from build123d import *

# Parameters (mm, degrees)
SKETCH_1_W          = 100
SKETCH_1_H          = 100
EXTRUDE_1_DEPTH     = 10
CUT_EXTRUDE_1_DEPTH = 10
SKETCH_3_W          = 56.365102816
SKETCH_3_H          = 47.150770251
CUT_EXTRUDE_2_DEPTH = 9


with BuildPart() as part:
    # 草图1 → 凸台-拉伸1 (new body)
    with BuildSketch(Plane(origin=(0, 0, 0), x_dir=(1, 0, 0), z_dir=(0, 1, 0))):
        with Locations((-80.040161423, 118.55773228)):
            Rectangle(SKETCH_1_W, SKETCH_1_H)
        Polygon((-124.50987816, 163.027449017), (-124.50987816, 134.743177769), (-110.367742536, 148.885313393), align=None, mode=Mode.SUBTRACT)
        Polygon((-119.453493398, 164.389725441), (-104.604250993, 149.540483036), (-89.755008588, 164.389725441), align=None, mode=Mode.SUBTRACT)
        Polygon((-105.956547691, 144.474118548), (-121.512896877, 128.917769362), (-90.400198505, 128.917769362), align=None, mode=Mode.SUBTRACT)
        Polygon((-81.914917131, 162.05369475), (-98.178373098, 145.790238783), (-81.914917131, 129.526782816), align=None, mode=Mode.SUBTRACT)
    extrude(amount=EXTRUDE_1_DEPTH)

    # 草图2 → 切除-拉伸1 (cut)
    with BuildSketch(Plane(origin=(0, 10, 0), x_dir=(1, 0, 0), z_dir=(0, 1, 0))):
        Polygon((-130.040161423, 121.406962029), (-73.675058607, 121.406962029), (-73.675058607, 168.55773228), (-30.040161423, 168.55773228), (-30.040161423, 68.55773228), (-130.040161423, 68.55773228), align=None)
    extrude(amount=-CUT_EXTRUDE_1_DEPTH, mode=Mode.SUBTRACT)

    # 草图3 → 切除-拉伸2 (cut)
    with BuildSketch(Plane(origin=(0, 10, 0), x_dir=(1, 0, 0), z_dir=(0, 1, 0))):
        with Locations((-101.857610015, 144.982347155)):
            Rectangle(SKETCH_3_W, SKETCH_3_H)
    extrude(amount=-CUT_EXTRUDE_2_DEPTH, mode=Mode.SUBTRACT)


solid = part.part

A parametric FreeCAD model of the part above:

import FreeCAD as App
import Part
import Sketcher
from FreeCAD import Vector
Q = App.Units.Quantity

doc = App.newDocument("Part")
params = doc.addObject("Spreadsheet::Sheet", "Params")
for row, (alias, value) in enumerate([
    ("sketch1_width", "100 mm"),
    ("sketch1_length", "22 mm"),
    ("sketch1_length2", "23 mm"),
    ("sketch1_length3", "20 mm"),
    ("sketch1_length4", "21 mm"),
    ("pad1_length", "10 mm"),
    ("sketch2_width", "100 mm"),
    ("pocket1_length", "10 mm"),
    ("pocket2_length", "9 mm"),
], start=1):
    params.set(f"A{row}", alias)
    params.set(f"B{row}", "=" + value)
    params.setAlias(f"B{row}", alias)

body = doc.addObject("PartDesign::Body", "Body")

# Sketch on XZ plane
sketch1 = body.newObject("Sketcher::SketchObject", "Sketch")
sketch1.AttachmentSupport = (doc.getObject("XZ_Plane"), [""])
sketch1.MapMode = "FlatFace"
sketch1.addGeometry(Part.LineSegment(Vector(-130.040161, -168.557732, 0), Vector(-130.040161, -68.557732, 0)), False)
sketch1.addGeometry(Part.LineSegment(Vector(-130.040161, -68.557732, 0), Vector(-30.040161, -68.557732, 0)), False)
sketch1.addGeometry(Part.LineSegment(Vector(-30.040161, -68.557732, 0), Vector(-30.040161, -168.557732, 0)), False)
sketch1.addGeometry(Part.LineSegment(Vector(-30.040161, -168.557732, 0), Vector(-130.040161, -168.557732, 0)), False)
sketch1.addGeometry(Part.LineSegment(Vector(-121.512897, -128.917769, 0), Vector(-105.956548, -144.474119, 0)), False)
sketch1.addGeometry(Part.LineSegment(Vector(-105.956548, -144.474119, 0), Vector(-90.400199, -128.917769, 0)), False)
sketch1.addGeometry(Part.LineSegment(Vector(-90.400199, -128.917769, 0), Vector(-121.512897, -128.917769, 0)), False)
sketch1.addGeometry(Part.LineSegment(Vector(-98.178373, -145.790239, 0), Vector(-81.914917, -162.053695, 0)), False)
sketch1.addGeometry(Part.LineSegment(Vector(-81.914917, -162.053695, 0), Vector(-81.914917, -129.526783, 0)), False)
sketch1.addGeometry(Part.LineSegment(Vector(-81.914917, -129.526783, 0), Vector(-98.178373, -145.790239, 0)), False)
sketch1.addGeometry(Part.LineSegment(Vector(-124.509878, -134.743178, 0), Vector(-124.509878, -163.027449, 0)), False)
sketch1.addGeometry(Part.LineSegment(Vector(-124.509878, -163.027449, 0), Vector(-110.367743, -148.885313, 0)), False)
sketch1.addGeometry(Part.LineSegment(Vector(-110.367743, -148.885313, 0), Vector(-124.509878, -134.743178, 0)), False)
sketch1.addGeometry(Part.LineSegment(Vector(-104.604251, -149.540483, 0), Vector(-119.453493, -164.389725, 0)), False)
sketch1.addGeometry(Part.LineSegment(Vector(-119.453493, -164.389725, 0), Vector(-89.755009, -164.389725, 0)), False)
sketch1.addGeometry(Part.LineSegment(Vector(-89.755009, -164.389725, 0), Vector(-104.604251, -149.540483, 0)), False)
sketch1.addConstraint(Sketcher.Constraint("Coincident", 0, 2, 1, 1))
sketch1.addConstraint(Sketcher.Constraint("Coincident", 1, 2, 2, 1))
sketch1.addConstraint(Sketcher.Constraint("Coincident", 2, 2, 3, 1))
sketch1.addConstraint(Sketcher.Constraint("Coincident", 3, 2, 0, 1))
sketch1.addConstraint(Sketcher.Constraint("Coincident", 4, 2, 5, 1))
sketch1.addConstraint(Sketcher.Constraint("Coincident", 5, 2, 6, 1))
sketch1.addConstraint(Sketcher.Constraint("Coincident", 6, 2, 4, 1))
sketch1.addConstraint(Sketcher.Constraint("Coincident", 7, 2, 8, 1))
sketch1.addConstraint(Sketcher.Constraint("Coincident", 8, 2, 9, 1))
sketch1.addConstraint(Sketcher.Constraint("Coincident", 9, 2, 7, 1))
sketch1.addConstraint(Sketcher.Constraint("Coincident", 10, 2, 11, 1))
sketch1.addConstraint(Sketcher.Constraint("Coincident", 11, 2, 12, 1))
sketch1.addConstraint(Sketcher.Constraint("Coincident", 12, 2, 10, 1))
sketch1.addConstraint(Sketcher.Constraint("Coincident", 13, 2, 14, 1))
sketch1.addConstraint(Sketcher.Constraint("Coincident", 14, 2, 15, 1))
sketch1.addConstraint(Sketcher.Constraint("Coincident", 15, 2, 13, 1))
sketch1.addConstraint(Sketcher.Constraint("Vertical", 0))
sketch1.addConstraint(Sketcher.Constraint("Horizontal", 1))
sketch1.addConstraint(Sketcher.Constraint("Vertical", 2))
sketch1.addConstraint(Sketcher.Constraint("Horizontal", 3))
sketch1.addConstraint(Sketcher.Constraint("Horizontal", 6))
sketch1.addConstraint(Sketcher.Constraint("Vertical", 8))
sketch1.addConstraint(Sketcher.Constraint("Vertical", 10))
sketch1.addConstraint(Sketcher.Constraint("Horizontal", 14))
sketch1.addConstraint(Sketcher.Constraint("Perpendicular", 4, 5))
sketch1.addConstraint(Sketcher.Constraint("Perpendicular", 5, 7))
sketch1.addConstraint(Sketcher.Constraint("Perpendicular", 7, 9))
sketch1.addConstraint(Sketcher.Constraint("Parallel", 9, 11))
sketch1.addConstraint(Sketcher.Constraint("Perpendicular", 11, 12))
sketch1.addConstraint(Sketcher.Constraint("Perpendicular", 12, 13))
sketch1.addConstraint(Sketcher.Constraint("Perpendicular", 13, 15))
sketch1.addConstraint(Sketcher.Constraint("Equal", 3, 0))
sketch1.addConstraint(Sketcher.Constraint("Equal", 4, 5))
sketch1.addConstraint(Sketcher.Constraint("DistanceX", 1, 1, 1, 2, Q("100 mm")))
sketch1.addConstraint(Sketcher.Constraint("Distance", 4, Q("22 mm")))
sketch1.addConstraint(Sketcher.Constraint("Distance", 7, Q("23 mm")))
sketch1.addConstraint(Sketcher.Constraint("Distance", 11, Q("20 mm")))
sketch1.addConstraint(Sketcher.Constraint("Distance", 13, Q("21 mm")))
sketch1.addConstraint(Sketcher.Constraint("DistanceX", 5, 2, -1, 1, Q("90.400199 mm")))
sketch1.addConstraint(Sketcher.Constraint("DistanceX", 0, 2, -1, 1, Q("130.040161 mm")))
sketch1.addConstraint(Sketcher.Constraint("DistanceY", 4, 2, -1, 1, Q("144.474119 mm")))
sketch1.addConstraint(Sketcher.Constraint("DistanceY", 9, 2, -1, 1, Q("145.790239 mm")))
sketch1.addConstraint(Sketcher.Constraint("DistanceX", 10, 2, -1, 1, Q("124.509878 mm")))
sketch1.addConstraint(Sketcher.Constraint("DistanceY", 10, 2, -1, 1, Q("163.027449 mm")))
sketch1.addConstraint(Sketcher.Constraint("DistanceX", 14, 2, -1, 1, Q("89.755009 mm")))
sketch1.addConstraint(Sketcher.Constraint("DistanceX", 4, 2, 7, 2, Q("24.041631 mm")))
sketch1.addConstraint(Sketcher.Constraint("DistanceY", 3, 2, 8, 2, Q("39.030949 mm")))
sketch1.addConstraint(Sketcher.Constraint("DistanceY", 14, 2, 7, 2, Q("2.336031 mm")))
sketch1.setExpression("Constraints[33]", "Params.sketch1_width")
sketch1.setExpression("Constraints[34]", "Params.sketch1_length")
sketch1.setExpression("Constraints[35]", "Params.sketch1_length2")
sketch1.setExpression("Constraints[36]", "Params.sketch1_length3")
sketch1.setExpression("Constraints[37]", "Params.sketch1_length4")
pad1 = body.newObject("PartDesign::Pad", "Pad")
pad1.Profile = sketch1
pad1.setExpression("Length", "Params.pad1_length")
pad1.Reversed = True

# Sketch on XZ plane
sketch2 = body.newObject("Sketcher::SketchObject", "Sketch001")
sketch2.AttachmentSupport = (doc.getObject("XZ_Plane"), [""])
sketch2.MapMode = "FlatFace"
sketch2.AttachmentOffset = App.Placement(Vector(0, 0, -10), App.Rotation())
sketch2.addGeometry(Part.LineSegment(Vector(-73.675059, -121.406962, 0), Vector(-130.040161, -121.406962, 0)), False)
sketch2.addGeometry(Part.LineSegment(Vector(-130.040161, -121.406962, 0), Vector(-130.040161, -68.557732, 0)), False)
sketch2.addGeometry(Part.LineSegment(Vector(-130.040161, -68.557732, 0), Vector(-30.040161, -68.557732, 0)), False)
sketch2.addGeometry(Part.LineSegment(Vector(-30.040161, -68.557732, 0), Vector(-30.040161, -168.557732, 0)), False)
sketch2.addGeometry(Part.LineSegment(Vector(-30.040161, -168.557732, 0), Vector(-73.675059, -168.557732, 0)), False)
sketch2.addGeometry(Part.LineSegment(Vector(-73.675059, -168.557732, 0), Vector(-73.675059, -121.406962, 0)), False)
sketch2.addConstraint(Sketcher.Constraint("Coincident", 0, 2, 1, 1))
sketch2.addConstraint(Sketcher.Constraint("Coincident", 1, 2, 2, 1))
sketch2.addConstraint(Sketcher.Constraint("Coincident", 2, 2, 3, 1))
sketch2.addConstraint(Sketcher.Constraint("Coincident", 3, 2, 4, 1))
sketch2.addConstraint(Sketcher.Constraint("Coincident", 4, 2, 5, 1))
sketch2.addConstraint(Sketcher.Constraint("Coincident", 5, 2, 0, 1))
sketch2.addConstraint(Sketcher.Constraint("Horizontal", 0))
sketch2.addConstraint(Sketcher.Constraint("Vertical", 1))
sketch2.addConstraint(Sketcher.Constraint("Horizontal", 2))
sketch2.addConstraint(Sketcher.Constraint("Vertical", 3))
sketch2.addConstraint(Sketcher.Constraint("Horizontal", 4))
sketch2.addConstraint(Sketcher.Constraint("Vertical", 5))
sketch2.addConstraint(Sketcher.Constraint("Equal", 2, 3))
sketch2.addConstraint(Sketcher.Constraint("DistanceX", 2, 1, 2, 2, Q("100 mm")))
sketch2.addConstraint(Sketcher.Constraint("DistanceY", 1, 1, 1, 2, Q("52.84923 mm")))
sketch2.addConstraint(Sketcher.Constraint("DistanceX", 0, 2, 0, 1, Q("56.365103 mm")))
sketch2.addConstraint(Sketcher.Constraint("DistanceX", 0, 2, -1, 1, Q("130.040161 mm")))
sketch2.addConstraint(Sketcher.Constraint("DistanceY", 0, 2, -1, 1, Q("121.406962 mm")))
sketch2.setExpression("Constraints[13]", "Params.sketch2_width")
pocket1 = body.newObject("PartDesign::Pocket", "Pocket")
pocket1.Profile = sketch2
pocket1.setExpression("Length", "Params.pocket1_length")
pocket1.Reversed = True

# Sketch on XZ plane
sketch3 = body.newObject("Sketcher::SketchObject", "Sketch002")
sketch3.AttachmentSupport = (doc.getObject("XZ_Plane"), [""])
sketch3.MapMode = "FlatFace"
sketch3.AttachmentOffset = App.Placement(Vector(0, 0, -10), App.Rotation())
sketch3.addGeometry(Part.LineSegment(Vector(-130.040161, -168.557732, 0), Vector(-130.040161, -121.406962, 0)), False)
sketch3.addGeometry(Part.LineSegment(Vector(-130.040161, -121.406962, 0), Vector(-73.675059, -121.406962, 0)), False)
sketch3.addGeometry(Part.LineSegment(Vector(-73.675059, -121.406962, 0), Vector(-73.675059, -168.557732, 0)), False)
sketch3.addGeometry(Part.LineSegment(Vector(-73.675059, -168.557732, 0), Vector(-130.040161, -168.557732, 0)), False)
sketch3.addConstraint(Sketcher.Constraint("Coincident", 0, 2, 1, 1))
sketch3.addConstraint(Sketcher.Constraint("Coincident", 1, 2, 2, 1))
sketch3.addConstraint(Sketcher.Constraint("Coincident", 2, 2, 3, 1))
sketch3.addConstraint(Sketcher.Constraint("Coincident", 3, 2, 0, 1))
sketch3.addConstraint(Sketcher.Constraint("Vertical", 0))
sketch3.addConstraint(Sketcher.Constraint("Horizontal", 1))
sketch3.addConstraint(Sketcher.Constraint("Vertical", 2))
sketch3.addConstraint(Sketcher.Constraint("Horizontal", 3))
sketch3.addConstraint(Sketcher.Constraint("DistanceY", 0, 1, 0, 2, Q("47.15077 mm")))
sketch3.addConstraint(Sketcher.Constraint("DistanceX", 1, 1, 1, 2, Q("56.365103 mm")))
sketch3.addConstraint(Sketcher.Constraint("DistanceX", 0, 2, -1, 1, Q("130.040161 mm")))
sketch3.addConstraint(Sketcher.Constraint("DistanceY", 0, 2, -1, 1, Q("121.406962 mm")))
pocket2 = body.newObject("PartDesign::Pocket", "Pocket001")
pocket2.Profile = sketch3
pocket2.setExpression("Length", "Params.pocket2_length")
pocket2.Reversed = True

doc.recompute()
